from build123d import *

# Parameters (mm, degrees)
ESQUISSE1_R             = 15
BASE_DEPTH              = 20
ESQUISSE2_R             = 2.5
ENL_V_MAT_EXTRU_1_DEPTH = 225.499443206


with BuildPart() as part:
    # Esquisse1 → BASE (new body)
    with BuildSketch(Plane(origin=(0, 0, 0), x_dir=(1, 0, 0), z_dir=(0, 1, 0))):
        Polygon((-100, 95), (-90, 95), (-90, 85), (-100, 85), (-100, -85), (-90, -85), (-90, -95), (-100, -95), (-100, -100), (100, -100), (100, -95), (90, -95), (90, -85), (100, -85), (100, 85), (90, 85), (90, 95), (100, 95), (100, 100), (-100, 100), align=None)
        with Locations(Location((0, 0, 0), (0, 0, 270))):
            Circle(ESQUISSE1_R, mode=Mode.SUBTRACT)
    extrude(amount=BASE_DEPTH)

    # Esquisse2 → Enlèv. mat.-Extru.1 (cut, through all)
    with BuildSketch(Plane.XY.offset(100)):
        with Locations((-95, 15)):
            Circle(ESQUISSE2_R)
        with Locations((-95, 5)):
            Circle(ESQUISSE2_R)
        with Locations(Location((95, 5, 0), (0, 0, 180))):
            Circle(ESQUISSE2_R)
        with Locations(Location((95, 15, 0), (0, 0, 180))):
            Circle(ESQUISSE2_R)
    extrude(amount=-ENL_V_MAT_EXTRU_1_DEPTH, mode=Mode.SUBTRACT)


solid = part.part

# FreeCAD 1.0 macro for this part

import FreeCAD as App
import Part
import Sketcher

V = App.Vector


def add_polygon(sketch, points):
    """Adds a closed chain of lines whose ends are joined by coincident constraints."""
    first, n = sketch.GeometryCount, len(points)
    for a, b in zip(points, points[1:] + points[:1]):
        sketch.addGeometry(Part.LineSegment(App.Vector(*a, 0), App.Vector(*b, 0)), False)
    for i in range(n):
        sketch.addConstraint(Sketcher.Constraint("Coincident", first + i, 2, first + (i + 1) % n, 1))

doc = App.newDocument("Part")
body = doc.addObject("PartDesign::Body", "Body")

sketch1 = body.newObject("Sketcher::SketchObject", "Sketch")
sketch1.AttachmentSupport = (doc.getObject("XZ_Plane"), [""])
sketch1.MapMode = "FlatFace"
add_polygon(sketch1, [(-100, -95), (-90, -95), (-90, -85), (-100, -85), (-100, 85), (-90, 85), (-90, 95), (-100, 95), (-100, 100), (100, 100), (100, 95), (90, 95), (90, 85), (100, 85), (100, -85), (90, -85), (90, -95), (100, -95), (100, -100), (-100, -100)])
sketch1.addGeometry(Part.Circle(V(0, 0, 0), V(0, 0, 1), 15), False)
sketch1.addConstraint(Sketcher.Constraint("Horizontal", 0))
sketch1.addConstraint(Sketcher.Constraint("Vertical", 1))
sketch1.addConstraint(Sketcher.Constraint("Horizontal", 2))
sketch1.addConstraint(Sketcher.Constraint("Vertical", 3))
sketch1.addConstraint(Sketcher.Constraint("Horizontal", 4))
sketch1.addConstraint(Sketcher.Constraint("Vertical", 5))
sketch1.addConstraint(Sketcher.Constraint("Horizontal", 6))
sketch1.addConstraint(Sketcher.Constraint("Vertical", 7))
sketch1.addConstraint(Sketcher.Constraint("Horizontal", 8))
sketch1.addConstraint(Sketcher.Constraint("Vertical", 9))
sketch1.addConstraint(Sketcher.Constraint("Horizontal", 10))
sketch1.addConstraint(Sketcher.Constraint("Vertical", 11))
sketch1.addConstraint(Sketcher.Constraint("Horizontal", 12))
sketch1.addConstraint(Sketcher.Constraint("Vertical", 13))
sketch1.addConstraint(Sketcher.Constraint("Horizontal", 14))
sketch1.addConstraint(Sketcher.Constraint("Vertical", 15))
sketch1.addConstraint(Sketcher.Constraint("Horizontal", 16))
sketch1.addConstraint(Sketcher.Constraint("Vertical", 17))
sketch1.addConstraint(Sketcher.Constraint("Horizontal", 18))
sketch1.addConstraint(Sketcher.Constraint("Vertical", 19))
sketch1.addConstraint(Sketcher.Constraint("Coincident", 20, 3, -1, 1))
sketch1.addConstraint(Sketcher.Constraint("Symmetric", 0, 2, 10, 2, -1, 1))
sketch1.addConstraint(Sketcher.Constraint("Symmetric", 2, 2, 12, 2, -1, 1))
sketch1.addConstraint(Sketcher.Constraint("Symmetric", 4, 2, 14, 2, -1, 1))
sketch1.addConstraint(Sketcher.Constraint("Symmetric", 6, 2, 16, 2, -1, 1))
sketch1.addConstraint(Sketcher.Constraint("Symmetric", 8, 2, 18, 2, -1, 1))
sketch1.addConstraint(Sketcher.Constraint("Symmetric", 6, 2, 9, 2, -2))
sketch1.addConstraint(Sketcher.Constraint("Symmetric", 4, 2, 11, 2, -2))
sketch1.addConstraint(Sketcher.Constraint("Vertical", 3, 2, 6, 2))
sketch1.addConstraint(Sketcher.Constraint("Equal", 16, 1))
sketch1.addConstraint(Sketcher.Constraint("Diameter", 20, 30.0))
sketch1.addConstraint(Sketcher.Constraint("DistanceX", 0, 1, 0, 2, 10.0))
sketch1.addConstraint(Sketcher.Constraint("DistanceX", 8, 1, 8, 2, 200.0))
sketch1.addConstraint(Sketcher.Constraint("DistanceY", 3, 1, 3, 2, 170.0))
sketch1.addConstraint(Sketcher.Constraint("DistanceY", 7, 1, 7, 2, 5.0))
pad1 = body.newObject("PartDesign::Pad", "Pad")
pad1.Profile = sketch1
pad1.Length = 20
pad1.Reversed = True

sketch2 = body.newObject("Sketcher::SketchObject", "Sketch001")
sketch2.AttachmentSupport = (doc.getObject("XY_Plane"), [""])
sketch2.MapMode = "FlatFace"
sketch2.AttachmentOffset = App.Placement(V(0, 0, 100), App.Rotation())
sketch2.addGeometry(Part.Circle(V(-95, 15, 0), V(0, 0, 1), 2.5), False)
sketch2.addGeometry(Part.Circle(V(-95, 5, 0), V(0, 0, 1), 2.5), False)
sketch2.addGeometry(Part.Circle(V(95, 5, 0), V(0, 0, 1), 2.5), False)
sketch2.addGeometry(Part.Circle(V(95, 15, 0), V(0, 0, 1), 2.5), False)
sketch2.addConstraint(Sketcher.Constraint("Equal", 0, 1))
sketch2.addConstraint(Sketcher.Constraint("Equal", 1, 2))
sketch2.addConstraint(Sketcher.Constraint("Equal", 2, 3))
sketch2.addConstraint(Sketcher.Constraint("Symmetric", 1, 3, 2, 3, -2))
sketch2.addConstraint(Sketcher.Constraint("Symmetric", 0, 3, 3, 3, -2))
sketch2.addConstraint(Sketcher.Constraint("Vertical", 0, 3, 1, 3))
sketch2.addConstraint(Sketcher.Constraint("Diameter", 0, 5.0))
sketch2.addConstraint(Sketcher.Constraint("DistanceX", 0, 3, -1, 1, 95.0))
sketch2.addConstraint(Sketcher.Constraint("DistanceY", -1, 1, 0, 3, 15.0))
sketch2.addConstraint(Sketcher.Constraint("DistanceY", -1, 1, 1, 3, 5.0))
pocket1 = body.newObject("PartDesign::Pocket", "Pocket")
pocket1.Profile = sketch2
pocket1.Type = "ThroughAll"

doc.recompute()
